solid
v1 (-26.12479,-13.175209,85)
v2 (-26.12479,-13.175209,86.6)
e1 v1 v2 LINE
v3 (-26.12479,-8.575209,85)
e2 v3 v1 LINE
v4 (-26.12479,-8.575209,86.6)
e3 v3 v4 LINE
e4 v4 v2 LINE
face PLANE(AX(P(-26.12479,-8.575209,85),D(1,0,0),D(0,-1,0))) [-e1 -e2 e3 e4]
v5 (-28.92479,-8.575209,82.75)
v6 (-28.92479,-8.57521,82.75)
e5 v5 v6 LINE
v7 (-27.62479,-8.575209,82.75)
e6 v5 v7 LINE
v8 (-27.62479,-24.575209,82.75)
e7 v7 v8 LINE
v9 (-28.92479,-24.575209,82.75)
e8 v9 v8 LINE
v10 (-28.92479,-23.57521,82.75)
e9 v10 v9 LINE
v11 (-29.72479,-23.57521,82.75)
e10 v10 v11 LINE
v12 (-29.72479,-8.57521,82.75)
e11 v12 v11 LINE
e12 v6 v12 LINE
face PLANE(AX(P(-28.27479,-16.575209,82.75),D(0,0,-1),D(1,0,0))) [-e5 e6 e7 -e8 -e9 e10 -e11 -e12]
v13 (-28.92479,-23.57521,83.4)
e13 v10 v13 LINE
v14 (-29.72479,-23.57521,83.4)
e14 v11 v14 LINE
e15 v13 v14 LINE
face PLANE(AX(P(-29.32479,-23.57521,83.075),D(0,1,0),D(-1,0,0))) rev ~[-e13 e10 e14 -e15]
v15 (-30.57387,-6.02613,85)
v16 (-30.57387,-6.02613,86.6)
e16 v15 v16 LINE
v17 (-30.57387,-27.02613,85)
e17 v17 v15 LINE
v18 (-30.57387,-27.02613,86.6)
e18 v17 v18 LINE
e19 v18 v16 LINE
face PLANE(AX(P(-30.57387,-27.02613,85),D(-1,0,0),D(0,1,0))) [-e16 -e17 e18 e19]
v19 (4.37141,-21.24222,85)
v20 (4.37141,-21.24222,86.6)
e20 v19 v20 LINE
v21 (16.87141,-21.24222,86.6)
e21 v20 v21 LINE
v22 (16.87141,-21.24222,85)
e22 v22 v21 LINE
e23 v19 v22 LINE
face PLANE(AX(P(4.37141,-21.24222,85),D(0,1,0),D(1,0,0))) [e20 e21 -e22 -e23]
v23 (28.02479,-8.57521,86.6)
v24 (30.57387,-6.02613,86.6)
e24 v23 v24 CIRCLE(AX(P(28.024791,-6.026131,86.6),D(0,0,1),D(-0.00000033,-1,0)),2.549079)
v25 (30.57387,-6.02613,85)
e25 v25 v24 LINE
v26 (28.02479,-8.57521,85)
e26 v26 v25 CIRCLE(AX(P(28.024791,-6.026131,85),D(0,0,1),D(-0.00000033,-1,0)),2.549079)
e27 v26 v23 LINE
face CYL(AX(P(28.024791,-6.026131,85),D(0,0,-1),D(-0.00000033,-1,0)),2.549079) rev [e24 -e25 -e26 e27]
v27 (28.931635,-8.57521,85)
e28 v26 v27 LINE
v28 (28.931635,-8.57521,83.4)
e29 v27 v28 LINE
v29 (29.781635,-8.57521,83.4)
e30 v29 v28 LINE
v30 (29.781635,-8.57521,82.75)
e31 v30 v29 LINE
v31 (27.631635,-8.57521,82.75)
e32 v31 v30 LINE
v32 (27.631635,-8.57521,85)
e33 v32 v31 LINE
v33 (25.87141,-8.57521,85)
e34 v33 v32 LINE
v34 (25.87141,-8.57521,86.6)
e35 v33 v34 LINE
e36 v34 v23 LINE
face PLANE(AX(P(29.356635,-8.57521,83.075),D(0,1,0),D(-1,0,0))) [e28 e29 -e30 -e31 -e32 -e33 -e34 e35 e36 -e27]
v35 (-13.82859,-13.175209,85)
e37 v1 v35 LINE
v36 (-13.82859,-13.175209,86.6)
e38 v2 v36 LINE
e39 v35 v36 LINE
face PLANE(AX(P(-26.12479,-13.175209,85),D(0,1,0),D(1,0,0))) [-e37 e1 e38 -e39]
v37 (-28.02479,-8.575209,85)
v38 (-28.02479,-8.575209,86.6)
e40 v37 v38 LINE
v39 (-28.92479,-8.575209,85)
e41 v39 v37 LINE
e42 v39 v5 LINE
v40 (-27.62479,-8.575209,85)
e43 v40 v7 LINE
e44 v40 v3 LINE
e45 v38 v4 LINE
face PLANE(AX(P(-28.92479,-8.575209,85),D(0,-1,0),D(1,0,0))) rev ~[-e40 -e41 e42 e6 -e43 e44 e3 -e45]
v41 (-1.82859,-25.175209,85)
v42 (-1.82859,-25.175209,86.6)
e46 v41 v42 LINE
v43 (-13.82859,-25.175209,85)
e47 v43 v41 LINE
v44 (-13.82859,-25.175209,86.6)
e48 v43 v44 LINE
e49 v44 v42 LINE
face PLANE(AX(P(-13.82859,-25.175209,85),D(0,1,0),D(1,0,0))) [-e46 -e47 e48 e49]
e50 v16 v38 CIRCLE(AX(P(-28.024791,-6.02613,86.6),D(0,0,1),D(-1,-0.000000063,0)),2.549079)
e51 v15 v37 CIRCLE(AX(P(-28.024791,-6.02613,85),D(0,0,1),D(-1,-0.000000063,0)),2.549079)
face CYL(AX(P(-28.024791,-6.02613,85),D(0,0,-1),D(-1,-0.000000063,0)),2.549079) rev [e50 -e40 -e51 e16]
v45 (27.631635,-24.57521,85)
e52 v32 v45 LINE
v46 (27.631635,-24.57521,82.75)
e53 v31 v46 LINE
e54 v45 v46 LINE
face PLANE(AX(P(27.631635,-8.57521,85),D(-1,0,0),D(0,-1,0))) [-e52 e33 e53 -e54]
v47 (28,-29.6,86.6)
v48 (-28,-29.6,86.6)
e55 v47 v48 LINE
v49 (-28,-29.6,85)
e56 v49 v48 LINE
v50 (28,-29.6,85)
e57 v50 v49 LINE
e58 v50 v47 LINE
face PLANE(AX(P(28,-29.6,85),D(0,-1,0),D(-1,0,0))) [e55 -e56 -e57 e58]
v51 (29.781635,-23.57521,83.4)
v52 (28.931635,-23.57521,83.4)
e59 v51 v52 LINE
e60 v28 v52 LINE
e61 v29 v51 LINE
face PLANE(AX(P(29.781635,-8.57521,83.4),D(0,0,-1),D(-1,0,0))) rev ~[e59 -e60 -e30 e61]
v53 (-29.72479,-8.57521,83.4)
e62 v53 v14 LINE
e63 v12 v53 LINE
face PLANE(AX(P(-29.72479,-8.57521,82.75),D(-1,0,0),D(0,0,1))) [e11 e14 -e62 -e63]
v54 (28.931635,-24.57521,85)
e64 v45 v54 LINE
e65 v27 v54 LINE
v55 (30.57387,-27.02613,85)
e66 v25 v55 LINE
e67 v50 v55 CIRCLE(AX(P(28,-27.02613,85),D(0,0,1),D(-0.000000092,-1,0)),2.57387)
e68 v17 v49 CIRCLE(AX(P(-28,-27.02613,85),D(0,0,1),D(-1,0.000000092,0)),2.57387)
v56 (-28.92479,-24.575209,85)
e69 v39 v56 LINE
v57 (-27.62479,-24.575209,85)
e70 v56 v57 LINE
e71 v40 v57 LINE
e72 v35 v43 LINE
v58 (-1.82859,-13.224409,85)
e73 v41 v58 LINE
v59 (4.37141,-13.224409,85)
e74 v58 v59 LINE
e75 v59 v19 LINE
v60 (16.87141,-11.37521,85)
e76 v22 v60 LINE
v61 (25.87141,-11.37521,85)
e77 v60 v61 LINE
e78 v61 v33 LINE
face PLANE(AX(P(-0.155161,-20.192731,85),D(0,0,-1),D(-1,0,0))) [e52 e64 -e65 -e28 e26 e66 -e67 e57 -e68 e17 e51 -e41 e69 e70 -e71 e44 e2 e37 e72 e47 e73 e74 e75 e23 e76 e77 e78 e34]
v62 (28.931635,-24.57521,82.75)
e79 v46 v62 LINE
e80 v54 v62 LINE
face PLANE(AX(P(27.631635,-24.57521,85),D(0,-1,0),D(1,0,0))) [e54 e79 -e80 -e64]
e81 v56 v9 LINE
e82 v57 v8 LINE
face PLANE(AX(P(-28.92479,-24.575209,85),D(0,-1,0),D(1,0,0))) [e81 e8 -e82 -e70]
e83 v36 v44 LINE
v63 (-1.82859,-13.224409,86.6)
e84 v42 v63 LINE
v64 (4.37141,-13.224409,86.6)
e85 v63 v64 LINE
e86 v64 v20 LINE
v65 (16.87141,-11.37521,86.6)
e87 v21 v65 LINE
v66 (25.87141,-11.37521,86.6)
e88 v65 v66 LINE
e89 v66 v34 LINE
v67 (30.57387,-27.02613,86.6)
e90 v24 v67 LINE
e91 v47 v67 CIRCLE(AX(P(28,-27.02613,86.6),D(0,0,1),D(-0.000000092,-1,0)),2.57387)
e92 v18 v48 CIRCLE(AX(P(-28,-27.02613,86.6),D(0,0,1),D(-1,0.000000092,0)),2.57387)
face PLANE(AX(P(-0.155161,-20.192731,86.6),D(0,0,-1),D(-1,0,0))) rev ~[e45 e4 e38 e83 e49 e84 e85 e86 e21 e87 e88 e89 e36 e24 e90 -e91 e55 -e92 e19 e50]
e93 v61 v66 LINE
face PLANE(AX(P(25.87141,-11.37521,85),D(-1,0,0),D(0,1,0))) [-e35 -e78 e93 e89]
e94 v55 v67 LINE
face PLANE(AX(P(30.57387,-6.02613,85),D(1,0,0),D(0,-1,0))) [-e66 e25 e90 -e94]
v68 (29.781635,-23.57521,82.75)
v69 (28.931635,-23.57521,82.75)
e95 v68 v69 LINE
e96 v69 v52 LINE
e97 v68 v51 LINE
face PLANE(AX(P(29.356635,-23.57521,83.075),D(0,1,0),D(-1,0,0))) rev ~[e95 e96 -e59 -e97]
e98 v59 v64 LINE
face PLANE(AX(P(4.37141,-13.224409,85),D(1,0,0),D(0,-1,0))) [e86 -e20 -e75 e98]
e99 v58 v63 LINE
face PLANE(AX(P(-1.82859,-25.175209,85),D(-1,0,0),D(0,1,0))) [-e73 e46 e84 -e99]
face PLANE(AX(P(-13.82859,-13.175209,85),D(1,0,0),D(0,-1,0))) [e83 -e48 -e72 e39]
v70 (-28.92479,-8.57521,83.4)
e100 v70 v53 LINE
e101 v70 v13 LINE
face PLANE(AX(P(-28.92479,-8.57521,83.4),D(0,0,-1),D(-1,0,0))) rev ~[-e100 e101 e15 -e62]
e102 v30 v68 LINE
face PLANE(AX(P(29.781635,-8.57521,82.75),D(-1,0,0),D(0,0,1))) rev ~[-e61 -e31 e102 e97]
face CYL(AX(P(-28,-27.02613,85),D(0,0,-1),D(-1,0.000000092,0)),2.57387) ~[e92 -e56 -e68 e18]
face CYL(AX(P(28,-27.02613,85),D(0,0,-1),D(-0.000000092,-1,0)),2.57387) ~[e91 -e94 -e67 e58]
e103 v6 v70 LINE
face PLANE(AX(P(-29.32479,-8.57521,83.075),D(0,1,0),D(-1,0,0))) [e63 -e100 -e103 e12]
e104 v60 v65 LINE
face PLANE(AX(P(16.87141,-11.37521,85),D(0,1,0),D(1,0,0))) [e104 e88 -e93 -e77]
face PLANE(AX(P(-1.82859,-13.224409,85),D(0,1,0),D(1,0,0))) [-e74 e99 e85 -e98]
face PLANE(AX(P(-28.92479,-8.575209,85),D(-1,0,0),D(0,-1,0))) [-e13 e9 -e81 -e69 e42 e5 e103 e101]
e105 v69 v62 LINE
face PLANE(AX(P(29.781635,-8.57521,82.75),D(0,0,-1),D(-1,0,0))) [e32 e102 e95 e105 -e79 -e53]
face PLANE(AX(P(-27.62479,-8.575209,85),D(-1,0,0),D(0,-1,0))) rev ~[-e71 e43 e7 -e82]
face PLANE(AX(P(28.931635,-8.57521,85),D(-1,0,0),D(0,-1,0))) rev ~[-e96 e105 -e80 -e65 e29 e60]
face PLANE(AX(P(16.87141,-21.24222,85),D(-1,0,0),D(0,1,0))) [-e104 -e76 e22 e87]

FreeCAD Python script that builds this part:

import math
import FreeCAD as App
import Part
import Sketcher
Q = App.Units.Quantity


def add_polygon(sketch, points):
    """Adds a closed chain of lines whose ends are joined by coincident constraints."""
    first, n = sketch.GeometryCount, len(points)
    for a, b in zip(points, points[1:] + points[:1]):
        sketch.addGeometry(Part.LineSegment(App.Vector(*a, 0), App.Vector(*b, 0)), False)
    for i in range(n):
        sketch.addConstraint(Sketcher.Constraint("Coincident", first + i, 2, first + (i + 1) % n, 1))

doc = App.newDocument("Part")
params = doc.addObject("Spreadsheet::Sheet", "Params")
for row, (alias, value) in enumerate([
    ("sketch1_width", "9 mm"),
    ("sketch1_width2", "12 mm"),
    ("sketch1_width3", "56 mm"),
    ("sketch1_height", "21 mm"),
    ("sketch1_width4", "12.5 mm"),
    ("pad1_length", "1.6 mm"),
    ("sketch2_height", "16 mm"),
    ("sketch2_width", "1.3 mm"),
    ("pad2_length", "2.25 mm"),
    ("sketch3_width", "0.8 mm"),
    ("sketch3_width2", "0.85 mm"),
    ("sketch3_height", "0.65 mm"),
    ("pad3_length", "15 mm"),
], start=1):
    params.set(f"A{row}", alias)
    params.set(f"B{row}", "=" + value)
    params.setAlias(f"B{row}", alias)

body = doc.addObject("PartDesign::Body", "Body")

# Sketch on XY plane
sketch1 = doc.addObject("Sketcher::SketchObject", "Sketch")
body.addObject(sketch1)
sketch1.AttachmentSupport = (doc.XY_Plane, [""])
sketch1.MapMode = "FlatFace"
sketch1.AttachmentOffset = App.Placement(App.Vector(0, 0, 85), App.Rotation())
sketch1.addGeometry(Part.LineSegment(App.Vector(30.57387, -27.02613, 0), App.Vector(30.57387, -6.02613, 0)), False)
sketch1.addGeometry(Part.ArcOfCircle(Part.Circle(App.Vector(28.024791, -6.026131, 0), App.Vector(0, 0, 1), 2.549079), math.radians(-90.000019), math.radians(0.000019)), False)
sketch1.addGeometry(Part.LineSegment(App.Vector(28.02479, -8.57521, 0), App.Vector(25.87141, -8.57521, 0)), False)
sketch1.addGeometry(Part.LineSegment(App.Vector(25.87141, -8.57521, 0), App.Vector(25.87141, -11.37521, 0)), False)
sketch1.addGeometry(Part.LineSegment(App.Vector(25.87141, -11.37521, 0), App.Vector(16.87141, -11.37521, 0)), False)
sketch1.addGeometry(Part.LineSegment(App.Vector(16.87141, -11.37521, 0), App.Vector(16.87141, -21.24222, 0)), False)
sketch1.addGeometry(Part.LineSegment(App.Vector(16.87141, -21.24222, 0), App.Vector(4.37141, -21.24222, 0)), False)
sketch1.addGeometry(Part.LineSegment(App.Vector(4.37141, -21.24222, 0), App.Vector(4.37141, -13.224409, 0)), False)
sketch1.addGeometry(Part.LineSegment(App.Vector(4.37141, -13.224409, 0), App.Vector(-1.82859, -13.224409, 0)), False)
sketch1.addGeometry(Part.LineSegment(App.Vector(-1.82859, -13.224409, 0), App.Vector(-1.82859, -25.175209, 0)), False)
sketch1.addGeometry(Part.LineSegment(App.Vector(-1.82859, -25.175209, 0), App.Vector(-13.82859, -25.175209, 0)), False)
sketch1.addGeometry(Part.LineSegment(App.Vector(-13.82859, -25.175209, 0), App.Vector(-13.82859, -13.175209, 0)), False)
sketch1.addGeometry(Part.LineSegment(App.Vector(-13.82859, -13.175209, 0), App.Vector(-26.12479, -13.175209, 0)), False)
sketch1.addGeometry(Part.LineSegment(App.Vector(-26.12479, -13.175209, 0), App.Vector(-26.12479, -8.575209, 0)), False)
sketch1.addGeometry(Part.LineSegment(App.Vector(-26.12479, -8.575209, 0), App.Vector(-28.02479, -8.575209, 0)), False)
sketch1.addGeometry(Part.ArcOfCircle(Part.Circle(App.Vector(-28.024791, -6.02613, 0), App.Vector(0, 0, 1), 2.549079), math.radians(-179.999996), math.radians(-89.999981)), False)
sketch1.addGeometry(Part.LineSegment(App.Vector(-30.57387, -6.02613, 0), App.Vector(-30.57387, -27.02613, 0)), False)
sketch1.addGeometry(Part.ArcOfCircle(Part.Circle(App.Vector(-28, -27.02613, 0), App.Vector(0, 0, 1), 2.57387), math.radians(179.999995), math.radians(270.000005)), False)
sketch1.addGeometry(Part.LineSegment(App.Vector(-28, -29.6, 0), App.Vector(28, -29.6, 0)), False)
sketch1.addGeometry(Part.ArcOfCircle(Part.Circle(App.Vector(28, -27.02613, 0), App.Vector(0, 0, 1), 2.57387), math.radians(-90.000005), math.radians(0.000005)), False)
sketch1.addConstraint(Sketcher.Constraint("Tangent", 0, 2, 1, 2))
sketch1.addConstraint(Sketcher.Constraint("Tangent", 1, 1, 2, 1))
sketch1.addConstraint(Sketcher.Constraint("Coincident", 2, 2, 3, 1))
sketch1.addConstraint(Sketcher.Constraint("Coincident", 3, 2, 4, 1))
sketch1.addConstraint(Sketcher.Constraint("Coincident", 4, 2, 5, 1))
sketch1.addConstraint(Sketcher.Constraint("Coincident", 5, 2, 6, 1))
sketch1.addConstraint(Sketcher.Constraint("Coincident", 6, 2, 7, 1))
sketch1.addConstraint(Sketcher.Constraint("Coincident", 7, 2, 8, 1))
sketch1.addConstraint(Sketcher.Constraint("Coincident", 8, 2, 9, 1))
sketch1.addConstraint(Sketcher.Constraint("Coincident", 9, 2, 10, 1))
sketch1.addConstraint(Sketcher.Constraint("Coincident", 10, 2, 11, 1))
sketch1.addConstraint(Sketcher.Constraint("Coincident", 11, 2, 12, 1))
sketch1.addConstraint(Sketcher.Constraint("Coincident", 12, 2, 13, 1))
sketch1.addConstraint(Sketcher.Constraint("Coincident", 13, 2, 14, 1))
sketch1.addConstraint(Sketcher.Constraint("Tangent", 14, 2, 15, 2))
sketch1.addConstraint(Sketcher.Constraint("Tangent", 15, 1, 16, 1))
sketch1.addConstraint(Sketcher.Constraint("Tangent", 16, 2, 17, 1))
sketch1.addConstraint(Sketcher.Constraint("Tangent", 17, 2, 18, 1))
sketch1.addConstraint(Sketcher.Constraint("Tangent", 18, 2, 19, 1))
sketch1.addConstraint(Sketcher.Constraint("Tangent", 19, 2, 0, 1))
sketch1.addConstraint(Sketcher.Constraint("Vertical", 0))
sketch1.addConstraint(Sketcher.Constraint("Horizontal", 2))
sketch1.addConstraint(Sketcher.Constraint("Vertical", 3))
sketch1.addConstraint(Sketcher.Constraint("Horizontal", 4))
sketch1.addConstraint(Sketcher.Constraint("Vertical", 5))
sketch1.addConstraint(Sketcher.Constraint("Horizontal", 6))
sketch1.addConstraint(Sketcher.Constraint("Vertical", 7))
sketch1.addConstraint(Sketcher.Constraint("Horizontal", 8))
sketch1.addConstraint(Sketcher.Constraint("Vertical", 9))
sketch1.addConstraint(Sketcher.Constraint("Horizontal", 10))
sketch1.addConstraint(Sketcher.Constraint("Vertical", 11))
sketch1.addConstraint(Sketcher.Constraint("Horizontal", 12))
sketch1.addConstraint(Sketcher.Constraint("Vertical", 13))
sketch1.addConstraint(Sketcher.Constraint("Horizontal", 14))
sketch1.addConstraint(Sketcher.Constraint("Vertical", 16))
sketch1.addConstraint(Sketcher.Constraint("Horizontal", 18))
sketch1.addConstraint(Sketcher.Constraint("Equal", 1, 15))
sketch1.addConstraint(Sketcher.Constraint("Equal", 17, 19))
sketch1.addConstraint(Sketcher.Constraint("Symmetric", 1, 3, 15, 3, -2))
sketch1.addConstraint(Sketcher.Constraint("Equal", 10, 11))
sketch1.addConstraint(Sketcher.Constraint("DistanceX", 4, 2, 4, 1, Q("9 mm")))
sketch1.addConstraint(Sketcher.Constraint("DistanceX", 10, 2, 10, 1, Q("12 mm")))
sketch1.addConstraint(Sketcher.Constraint("DistanceX", 18, 1, 18, 2, Q("56 mm")))
sketch1.addConstraint(Sketcher.Constraint("DistanceY", 0, 1, 0, 2, Q("21 mm")))
sketch1.addConstraint(Sketcher.Constraint("DistanceX", 6, 2, 6, 1, Q("12.5 mm")))
sketch1.addConstraint(Sketcher.Constraint("DistanceX", 8, 2, 8, 1, Q("6.2 mm")))
sketch1.addConstraint(Sketcher.Constraint("DistanceX", 14, 2, 14, 1, Q("1.9 mm")))
sketch1.addConstraint(Sketcher.Constraint("DistanceY", 3, 2, 3, 1, Q("2.8 mm")))
sketch1.addConstraint(Sketcher.Constraint("DistanceY", 13, 1, 13, 2, Q("4.6 mm")))
sketch1.addConstraint(Sketcher.Constraint("DistanceY", 17, 2, -1, 1, Q("29.6 mm")))
sketch1.addConstraint(Sketcher.Constraint("Radius", 1, Q("2.549079 mm")))
sketch1.addConstraint(Sketcher.Constraint("Radius", 17, Q("2.57387 mm")))
sketch1.addConstraint(Sketcher.Constraint("DistanceX", 12, 2, 12, 1, Q("12.2962 mm")))
sketch1.addConstraint(Sketcher.Constraint("DistanceY", 9, 2, 9, 1, Q("11.9508 mm")))
sketch1.addConstraint(Sketcher.Constraint("DistanceY", 5, 2, 5, 1, Q("9.86701 mm")))
sketch1.setExpression("Constraints[40]", "Params.sketch1_width")
sketch1.setExpression("Constraints[41]", "Params.sketch1_width2")
sketch1.setExpression("Constraints[42]", "Params.sketch1_width3")
sketch1.setExpression("Constraints[43]", "Params.sketch1_height")
sketch1.setExpression("Constraints[44]", "Params.sketch1_width4")
pad1 = doc.addObject("PartDesign::Pad", "Pad")
body.addObject(pad1)
pad1.Profile = sketch1
pad1.setExpression("Length", "Params.pad1_length")

# Sketch on XY plane
sketch2 = doc.addObject("Sketcher::SketchObject", "Sketch001")
body.addObject(sketch2)
sketch2.AttachmentSupport = (doc.XY_Plane, [""])
sketch2.MapMode = "FlatFace"
sketch2.AttachmentOffset = App.Placement(App.Vector(0, 0, 85), App.Rotation())
add_polygon(sketch2, [(-28.92479, -24.575209), (-28.92479, -8.575209), (-27.62479, -8.575209), (-27.62479, -24.575209)])  # lines 0-3
add_polygon(sketch2, [(27.631635, -24.57521), (27.631635, -8.57521), (28.931635, -8.57521), (28.931635, -24.57521)])  # lines 4-7
sketch2.addConstraint(Sketcher.Constraint("Vertical", 0))
sketch2.addConstraint(Sketcher.Constraint("Horizontal", 1))
sketch2.addConstraint(Sketcher.Constraint("Vertical", 2))
sketch2.addConstraint(Sketcher.Constraint("Horizontal", 3))
sketch2.addConstraint(Sketcher.Constraint("Vertical", 4))
sketch2.addConstraint(Sketcher.Constraint("Horizontal", 5))
sketch2.addConstraint(Sketcher.Constraint("Vertical", 6))
sketch2.addConstraint(Sketcher.Constraint("Horizontal", 7))
sketch2.addConstraint(Sketcher.Constraint("Horizontal", 1, 2, 4, 2))
sketch2.addConstraint(Sketcher.Constraint("Horizontal", 3, 2, 6, 2))
sketch2.addConstraint(Sketcher.Constraint("Equal", 3, 5))
sketch2.addConstraint(Sketcher.Constraint("DistanceY", 0, 1, 0, 2, Q("16 mm")))
sketch2.addConstraint(Sketcher.Constraint("DistanceX", 1, 1, 1, 2, Q("1.3 mm")))
sketch2.addConstraint(Sketcher.Constraint("DistanceX", 0, 2, -1, 1, Q("28.92479 mm")))
sketch2.addConstraint(Sketcher.Constraint("DistanceY", 0, 2, -1, 1, Q("8.575209 mm")))
sketch2.addConstraint(Sketcher.Constraint("DistanceX", -1, 1, 4, 2, Q("27.631635 mm")))
sketch2.setExpression("Constraints[19]", "Params.sketch2_height")
sketch2.setExpression("Constraints[20]", "Params.sketch2_width")
pad2 = doc.addObject("PartDesign::Pad", "Pad001")
body.addObject(pad2)
pad2.Profile = sketch2
pad2.setExpression("Length", "Params.pad2_length")
pad2.Reversed = True

# Sketch on XZ plane
sketch3 = doc.addObject("Sketcher::SketchObject", "Sketch002")
body.addObject(sketch3)
sketch3.AttachmentSupport = (doc.XZ_Plane, [""])
sketch3.MapMode = "FlatFace"
sketch3.AttachmentOffset = App.Placement(App.Vector(0, 0, 8.57521), App.Rotation())
add_polygon(sketch3, [(-28.92479, 83.4), (-28.92479, 82.75), (-29.72479, 82.75), (-29.72479, 83.4)])  # lines 0-3
add_polygon(sketch3, [(29.781635, 83.4), (29.781635, 82.75), (28.931635, 82.75), (28.931635, 83.4)])  # lines 4-7
sketch3.addConstraint(Sketcher.Constraint("Vertical", 0))
sketch3.addConstraint(Sketcher.Constraint("Horizontal", 1))
sketch3.addConstraint(Sketcher.Constraint("Vertical", 2))
sketch3.addConstraint(Sketcher.Constraint("Horizontal", 3))
sketch3.addConstraint(Sketcher.Constraint("Vertical", 4))
sketch3.addConstraint(Sketcher.Constraint("Horizontal", 5))
sketch3.addConstraint(Sketcher.Constraint("Vertical", 6))
sketch3.addConstraint(Sketcher.Constraint("Horizontal", 7))
sketch3.addConstraint(Sketcher.Constraint("Horizontal", 1, 2, 4, 2))
sketch3.addConstraint(Sketcher.Constraint("Horizontal", 3, 2, 6, 2))
sketch3.addConstraint(Sketcher.Constraint("DistanceX", 1, 2, 1, 1, Q("0.8 mm")))
sketch3.addConstraint(Sketcher.Constraint("DistanceX", 5, 2, 5, 1, Q("0.85 mm")))
sketch3.addConstraint(Sketcher.Constraint("DistanceY", 0, 2, 0, 1, Q("0.65 mm")))
sketch3.addConstraint(Sketcher.Constraint("DistanceY", -1, 1, 2, 2, Q("83.4 mm")))
sketch3.addConstraint(Sketcher.Constraint("DistanceX", 0, 2, -1, 1, Q("28.92479 mm")))
sketch3.addConstraint(Sketcher.Constraint("DistanceX", -1, 1, 4, 2, Q("29.781635 mm")))
sketch3.setExpression("Constraints[18]", "Params.sketch3_width")
sketch3.setExpression("Constraints[19]", "Params.sketch3_width2")
sketch3.setExpression("Constraints[20]", "Params.sketch3_height")
pad3 = doc.addObject("PartDesign::Pad", "Pad002")
body.addObject(pad3)
pad3.Profile = sketch3
pad3.setExpression("Length", "Params.pad3_length")

doc.recompute()
